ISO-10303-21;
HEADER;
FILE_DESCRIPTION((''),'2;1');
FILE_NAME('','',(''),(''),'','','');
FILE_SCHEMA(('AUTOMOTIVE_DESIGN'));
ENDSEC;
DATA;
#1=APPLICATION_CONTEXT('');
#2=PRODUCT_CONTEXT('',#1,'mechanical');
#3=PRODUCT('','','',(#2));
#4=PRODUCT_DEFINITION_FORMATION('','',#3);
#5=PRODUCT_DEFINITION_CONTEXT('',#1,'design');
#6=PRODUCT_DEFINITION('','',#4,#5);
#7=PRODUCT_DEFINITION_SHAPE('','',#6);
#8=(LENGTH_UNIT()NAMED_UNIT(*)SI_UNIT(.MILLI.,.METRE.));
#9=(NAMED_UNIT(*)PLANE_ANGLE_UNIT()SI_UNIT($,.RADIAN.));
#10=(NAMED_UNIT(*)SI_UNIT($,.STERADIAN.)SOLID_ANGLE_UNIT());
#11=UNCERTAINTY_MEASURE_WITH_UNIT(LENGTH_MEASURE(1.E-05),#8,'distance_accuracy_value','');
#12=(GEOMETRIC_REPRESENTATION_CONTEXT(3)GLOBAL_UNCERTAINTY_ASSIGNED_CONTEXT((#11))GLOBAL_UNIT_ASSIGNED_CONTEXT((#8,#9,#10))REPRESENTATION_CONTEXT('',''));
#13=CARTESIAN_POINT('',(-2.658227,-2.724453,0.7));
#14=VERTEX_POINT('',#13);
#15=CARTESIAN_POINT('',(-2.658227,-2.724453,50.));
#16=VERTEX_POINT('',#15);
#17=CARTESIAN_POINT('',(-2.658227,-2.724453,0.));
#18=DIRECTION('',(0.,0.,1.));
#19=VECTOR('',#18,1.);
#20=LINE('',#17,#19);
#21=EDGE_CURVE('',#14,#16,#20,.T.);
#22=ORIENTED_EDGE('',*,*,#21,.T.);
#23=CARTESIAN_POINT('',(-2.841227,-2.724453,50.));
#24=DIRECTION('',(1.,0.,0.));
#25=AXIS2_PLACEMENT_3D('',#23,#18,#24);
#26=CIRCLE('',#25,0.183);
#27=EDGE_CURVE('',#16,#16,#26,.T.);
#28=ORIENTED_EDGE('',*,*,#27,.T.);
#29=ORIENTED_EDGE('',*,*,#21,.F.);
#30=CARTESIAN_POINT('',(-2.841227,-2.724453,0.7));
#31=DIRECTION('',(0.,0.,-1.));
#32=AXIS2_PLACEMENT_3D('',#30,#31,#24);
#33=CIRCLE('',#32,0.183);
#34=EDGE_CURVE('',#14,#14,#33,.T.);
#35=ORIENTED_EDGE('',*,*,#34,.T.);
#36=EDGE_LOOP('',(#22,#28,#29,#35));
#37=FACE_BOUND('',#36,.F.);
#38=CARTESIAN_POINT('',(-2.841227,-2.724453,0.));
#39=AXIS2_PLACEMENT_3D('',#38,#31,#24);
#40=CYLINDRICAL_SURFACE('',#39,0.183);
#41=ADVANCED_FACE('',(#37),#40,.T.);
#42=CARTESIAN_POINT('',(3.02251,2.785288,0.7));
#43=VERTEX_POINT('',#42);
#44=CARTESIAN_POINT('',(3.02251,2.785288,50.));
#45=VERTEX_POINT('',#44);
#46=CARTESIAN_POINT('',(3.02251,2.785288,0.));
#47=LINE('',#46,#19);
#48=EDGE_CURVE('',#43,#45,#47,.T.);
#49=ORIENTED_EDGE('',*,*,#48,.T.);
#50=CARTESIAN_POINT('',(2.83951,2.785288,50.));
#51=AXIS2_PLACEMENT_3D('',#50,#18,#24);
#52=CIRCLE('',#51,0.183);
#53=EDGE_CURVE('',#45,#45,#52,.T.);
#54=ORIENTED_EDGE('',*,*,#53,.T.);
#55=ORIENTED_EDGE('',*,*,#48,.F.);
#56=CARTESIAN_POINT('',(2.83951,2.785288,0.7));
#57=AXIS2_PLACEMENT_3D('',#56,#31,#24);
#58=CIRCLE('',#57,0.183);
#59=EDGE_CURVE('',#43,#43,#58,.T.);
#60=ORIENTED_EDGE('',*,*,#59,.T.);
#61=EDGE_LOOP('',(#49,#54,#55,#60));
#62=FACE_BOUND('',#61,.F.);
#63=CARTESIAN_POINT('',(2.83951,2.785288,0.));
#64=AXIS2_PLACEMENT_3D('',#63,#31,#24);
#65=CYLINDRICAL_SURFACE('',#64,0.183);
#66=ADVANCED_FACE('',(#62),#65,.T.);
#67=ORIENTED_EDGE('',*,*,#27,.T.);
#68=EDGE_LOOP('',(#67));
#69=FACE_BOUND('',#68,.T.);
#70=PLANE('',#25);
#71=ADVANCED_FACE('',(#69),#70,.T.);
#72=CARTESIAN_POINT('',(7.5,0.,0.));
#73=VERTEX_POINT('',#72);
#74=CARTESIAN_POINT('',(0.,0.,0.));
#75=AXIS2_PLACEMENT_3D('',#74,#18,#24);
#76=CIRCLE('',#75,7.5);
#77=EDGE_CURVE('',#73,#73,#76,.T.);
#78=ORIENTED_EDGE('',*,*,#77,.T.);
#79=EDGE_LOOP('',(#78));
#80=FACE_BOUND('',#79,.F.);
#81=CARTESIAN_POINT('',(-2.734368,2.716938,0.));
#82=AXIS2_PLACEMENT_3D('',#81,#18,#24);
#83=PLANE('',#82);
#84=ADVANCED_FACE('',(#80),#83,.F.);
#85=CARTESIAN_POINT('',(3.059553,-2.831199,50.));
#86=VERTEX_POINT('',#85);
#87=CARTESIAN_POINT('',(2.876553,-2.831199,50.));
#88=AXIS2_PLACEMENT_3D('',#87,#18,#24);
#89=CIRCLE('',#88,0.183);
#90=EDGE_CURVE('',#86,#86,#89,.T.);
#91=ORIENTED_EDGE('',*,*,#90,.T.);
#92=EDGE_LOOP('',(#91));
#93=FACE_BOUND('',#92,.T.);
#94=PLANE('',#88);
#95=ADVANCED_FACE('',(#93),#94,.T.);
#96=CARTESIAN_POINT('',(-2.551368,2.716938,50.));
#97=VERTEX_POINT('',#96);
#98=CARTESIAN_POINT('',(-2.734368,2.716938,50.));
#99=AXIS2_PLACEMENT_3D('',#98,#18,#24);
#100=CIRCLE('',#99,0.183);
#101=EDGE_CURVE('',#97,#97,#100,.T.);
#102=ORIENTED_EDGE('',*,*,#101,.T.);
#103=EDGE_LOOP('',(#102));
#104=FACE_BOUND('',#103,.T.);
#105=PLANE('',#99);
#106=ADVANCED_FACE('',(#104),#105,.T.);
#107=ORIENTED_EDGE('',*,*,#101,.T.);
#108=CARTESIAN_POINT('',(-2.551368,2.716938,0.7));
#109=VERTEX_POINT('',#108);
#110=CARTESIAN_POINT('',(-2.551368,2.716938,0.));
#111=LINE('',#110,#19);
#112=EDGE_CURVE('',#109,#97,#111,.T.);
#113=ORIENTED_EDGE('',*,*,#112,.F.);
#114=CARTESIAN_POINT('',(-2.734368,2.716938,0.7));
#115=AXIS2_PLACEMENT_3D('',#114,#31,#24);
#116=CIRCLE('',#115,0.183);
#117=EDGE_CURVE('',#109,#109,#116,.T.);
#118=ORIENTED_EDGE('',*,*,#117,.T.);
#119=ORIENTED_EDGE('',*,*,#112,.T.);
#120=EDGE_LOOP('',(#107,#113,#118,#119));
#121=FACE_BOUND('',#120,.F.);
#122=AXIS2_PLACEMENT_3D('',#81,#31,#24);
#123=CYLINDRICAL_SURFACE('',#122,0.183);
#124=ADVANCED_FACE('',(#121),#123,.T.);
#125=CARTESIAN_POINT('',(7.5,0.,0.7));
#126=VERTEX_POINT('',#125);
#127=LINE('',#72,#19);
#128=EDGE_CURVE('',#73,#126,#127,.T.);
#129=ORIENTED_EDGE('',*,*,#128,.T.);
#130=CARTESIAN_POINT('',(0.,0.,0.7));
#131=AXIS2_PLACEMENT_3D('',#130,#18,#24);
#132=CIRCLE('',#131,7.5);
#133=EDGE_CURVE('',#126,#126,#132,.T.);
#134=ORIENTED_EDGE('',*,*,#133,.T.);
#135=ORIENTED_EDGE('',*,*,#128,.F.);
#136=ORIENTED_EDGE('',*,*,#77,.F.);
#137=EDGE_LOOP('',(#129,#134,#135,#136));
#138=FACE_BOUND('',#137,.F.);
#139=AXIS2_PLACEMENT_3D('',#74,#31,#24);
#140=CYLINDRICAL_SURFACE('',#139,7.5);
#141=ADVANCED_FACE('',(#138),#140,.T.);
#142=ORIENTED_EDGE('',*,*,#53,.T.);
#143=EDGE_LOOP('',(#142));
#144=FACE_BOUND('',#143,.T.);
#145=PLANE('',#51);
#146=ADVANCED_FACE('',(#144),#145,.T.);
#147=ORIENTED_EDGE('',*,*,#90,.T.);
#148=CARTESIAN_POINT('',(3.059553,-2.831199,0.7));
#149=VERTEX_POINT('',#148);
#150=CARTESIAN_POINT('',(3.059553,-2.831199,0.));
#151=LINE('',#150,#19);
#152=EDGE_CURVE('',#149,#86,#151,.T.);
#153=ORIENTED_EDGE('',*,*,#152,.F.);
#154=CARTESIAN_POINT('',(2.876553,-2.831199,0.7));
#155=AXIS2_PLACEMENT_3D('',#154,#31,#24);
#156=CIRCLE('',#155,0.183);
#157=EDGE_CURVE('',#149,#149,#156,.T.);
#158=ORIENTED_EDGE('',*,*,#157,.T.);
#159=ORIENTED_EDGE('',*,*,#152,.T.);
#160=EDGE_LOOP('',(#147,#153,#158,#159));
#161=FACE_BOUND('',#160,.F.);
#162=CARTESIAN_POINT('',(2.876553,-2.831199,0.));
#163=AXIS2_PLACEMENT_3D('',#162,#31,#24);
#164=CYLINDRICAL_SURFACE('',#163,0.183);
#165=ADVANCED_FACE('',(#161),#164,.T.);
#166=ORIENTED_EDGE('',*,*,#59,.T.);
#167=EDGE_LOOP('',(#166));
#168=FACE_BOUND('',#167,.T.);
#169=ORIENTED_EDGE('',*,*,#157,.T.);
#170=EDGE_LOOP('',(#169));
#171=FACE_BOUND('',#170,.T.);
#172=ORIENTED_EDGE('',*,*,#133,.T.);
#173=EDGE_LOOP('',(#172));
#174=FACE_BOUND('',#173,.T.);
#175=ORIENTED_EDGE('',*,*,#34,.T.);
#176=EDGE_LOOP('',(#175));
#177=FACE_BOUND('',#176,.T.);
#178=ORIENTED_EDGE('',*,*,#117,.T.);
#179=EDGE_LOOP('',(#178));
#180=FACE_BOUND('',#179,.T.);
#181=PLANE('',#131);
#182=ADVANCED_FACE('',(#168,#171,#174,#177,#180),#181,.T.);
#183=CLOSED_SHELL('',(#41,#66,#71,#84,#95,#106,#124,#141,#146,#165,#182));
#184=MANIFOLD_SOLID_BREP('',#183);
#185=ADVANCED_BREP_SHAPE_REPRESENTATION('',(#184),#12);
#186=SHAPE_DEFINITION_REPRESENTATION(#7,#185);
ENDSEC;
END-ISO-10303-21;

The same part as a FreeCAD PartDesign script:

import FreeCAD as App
import Part
import Sketcher

V = App.Vector

doc = App.newDocument("Part")
body = doc.addObject("PartDesign::Body", "Body")

sketch1 = body.newObject("Sketcher::SketchObject", "Sketch")
sketch1.AttachmentSupport = (doc.getObject("XY_Plane"), [""])
sketch1.MapMode = "FlatFace"
sketch1.addGeometry(Part.Circle(V(0, 0, 0), V(0, 0, 1), 8), False)
sketch1.addConstraint(Sketcher.Constraint("Coincident", 0, 3, -1, 1))
sketch1.addConstraint(Sketcher.Constraint("Diameter", 0, 15.0))
pad1 = body.newObject("PartDesign::Pad", "Pad")
pad1.Profile = sketch1
pad1.Length = 0.7

sketch2 = body.newObject("Sketcher::SketchObject", "Sketch001")
sketch2.AttachmentSupport = (doc.getObject("XY_Plane"), [""])
sketch2.MapMode = "FlatFace"
sketch2.addGeometry(Part.Circle(V(-2.73, 2.72, 0), V(0, 0, 1), 0.18), False)
sketch2.addGeometry(Part.Circle(V(2.84, 2.79, 0), V(0, 0, 1), 0.18), False)
sketch2.addGeometry(Part.Circle(V(2.88, -2.83, 0), V(0, 0, 1), 0.18), False)
sketch2.addGeometry(Part.Circle(V(-2.84, -2.72, 0), V(0, 0, 1), 0.18), False)
sketch2.addConstraint(Sketcher.Constraint("Equal", 0, 1))
sketch2.addConstraint(Sketcher.Constraint("Equal", 1, 2))
sketch2.addConstraint(Sketcher.Constraint("Equal", 2, 3))
sketch2.addConstraint(Sketcher.Constraint("Diameter", 0, 0.366))
sketch2.addConstraint(Sketcher.Constraint("DistanceY", 2, 3, -1, 1, 2.831199))
sketch2.addConstraint(Sketcher.Constraint("DistanceX", -1, 1, 1, 3, 2.83951))
sketch2.addConstraint(Sketcher.Constraint("DistanceY", -1, 1, 1, 3, 2.785288))
sketch2.addConstraint(Sketcher.Constraint("DistanceX", 0, 3, 1, 3, 5.573878))
sketch2.addConstraint(Sketcher.Constraint("DistanceY", 0, 3, 1, 3, 0.06835))
sketch2.addConstraint(Sketcher.Constraint("DistanceX", 0, 3, 2, 3, 5.610921))
sketch2.addConstraint(Sketcher.Constraint("DistanceX", 3, 3, 0, 3, 0.106859))
sketch2.addConstraint(Sketcher.Constraint("DistanceY", 3, 3, 0, 3, 5.441391))
pad2 = body.newObject("PartDesign::Pad", "Pad001")
pad2.Profile = sketch2
pad2.Length = 50

doc.recompute()
